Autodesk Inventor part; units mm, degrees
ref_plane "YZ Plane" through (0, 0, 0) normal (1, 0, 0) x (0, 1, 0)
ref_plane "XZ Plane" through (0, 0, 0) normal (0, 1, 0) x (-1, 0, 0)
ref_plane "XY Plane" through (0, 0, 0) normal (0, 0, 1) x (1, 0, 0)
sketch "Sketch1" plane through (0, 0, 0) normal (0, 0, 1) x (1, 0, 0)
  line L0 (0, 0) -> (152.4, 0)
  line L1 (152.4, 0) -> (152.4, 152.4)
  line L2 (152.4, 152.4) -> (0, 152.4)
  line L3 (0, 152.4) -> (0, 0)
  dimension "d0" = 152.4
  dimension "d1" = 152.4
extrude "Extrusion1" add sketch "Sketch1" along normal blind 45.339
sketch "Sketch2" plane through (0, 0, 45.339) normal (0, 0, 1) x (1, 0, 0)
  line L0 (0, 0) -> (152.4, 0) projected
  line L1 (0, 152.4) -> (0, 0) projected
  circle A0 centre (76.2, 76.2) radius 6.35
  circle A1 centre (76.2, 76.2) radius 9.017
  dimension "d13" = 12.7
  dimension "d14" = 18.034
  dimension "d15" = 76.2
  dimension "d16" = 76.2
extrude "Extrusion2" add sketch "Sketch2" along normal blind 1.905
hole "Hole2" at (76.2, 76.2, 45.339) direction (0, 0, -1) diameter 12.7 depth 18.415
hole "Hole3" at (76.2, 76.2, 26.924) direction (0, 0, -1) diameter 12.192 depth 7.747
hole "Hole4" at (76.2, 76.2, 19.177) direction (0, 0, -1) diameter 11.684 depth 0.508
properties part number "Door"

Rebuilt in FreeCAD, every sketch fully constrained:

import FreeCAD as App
import Part
import Sketcher

V = App.Vector
Q = App.Units.Quantity


def add_polygon(sketch, points):
    """Adds a closed chain of lines whose ends are joined by coincident constraints."""
    first, n = sketch.GeometryCount, len(points)
    for a, b in zip(points, points[1:] + points[:1]):
        sketch.addGeometry(Part.LineSegment(App.Vector(*a, 0), App.Vector(*b, 0)), False)
    for i in range(n):
        sketch.addConstraint(Sketcher.Constraint("Coincident", first + i, 2, first + (i + 1) % n, 1))

doc = App.newDocument("Part")
body = doc.addObject("PartDesign::Body", "Body")

sketch1 = body.newObject("Sketcher::SketchObject", "Sketch")
sketch1.AttachmentSupport = (doc.getObject("XY_Plane"), [""])
sketch1.MapMode = "FlatFace"
add_polygon(sketch1, [(0, 152), (0, 0), (152, 0), (152, 152)])
sketch1.addConstraint([
    Sketcher.Constraint("Vertical", 0),
    Sketcher.Constraint("Horizontal", 1),
    Sketcher.Constraint("Vertical", 2),
    Sketcher.Constraint("Horizontal", 3),
    Sketcher.Constraint("Coincident", 0, 2, -1, 1),
    Sketcher.Constraint("Equal", 3, 0),
    Sketcher.Constraint("DistanceX", 1, 1, 1, 2, Q("6 in")),
])
pad1 = body.newObject("PartDesign::Pad", "Pad")
pad1.Profile = sketch1
pad1.Length = Q("1.785 in")

sketch2 = body.newObject("Sketcher::SketchObject", "Sketch001")
sketch2.AttachmentSupport = (doc.getObject("XY_Plane"), [""])
sketch2.MapMode = "FlatFace"
sketch2.AttachmentOffset = App.Placement(V(0, 0, 1.785 * 25.4), App.Rotation())
sketch2.addGeometry([
    Part.Circle(V(76, 76, 0), V(0, 0, 1), 9),
    Part.Circle(V(76, 76, 0), V(0, 0, 1), 6),
], False)
sketch2.addConstraint([
    Sketcher.Constraint("Coincident", 1, 3, 0, 3),
    Sketcher.Constraint("Diameter", 1, Q("0.5 in")),
    Sketcher.Constraint("Diameter", 0, Q("0.71 in")),
    Sketcher.Constraint("DistanceX", -1, 1, 0, 3, Q("3 in")),
    Sketcher.Constraint("DistanceY", -1, 1, 0, 3, Q("3 in")),
])
pad2 = body.newObject("PartDesign::Pad", "Pad001")
pad2.Profile = sketch2
pad2.Length = Q("0.075 in")

sketch3 = body.newObject("Sketcher::SketchObject", "Sketch002")
sketch3.AttachmentSupport = (doc.getObject("XY_Plane"), [""])
sketch3.MapMode = "FlatFace"
sketch3.AttachmentOffset = App.Placement(V(0, 0, 1.785 * 25.4), App.Rotation())
sketch3.addGeometry(Part.Circle(V(76, 76, 0), V(0, 0, 1), 6), False)
sketch3.addConstraint([
    Sketcher.Constraint("Diameter", 0, Q("0.5 in")),
    Sketcher.Constraint("DistanceX", -1, 1, 0, 3, Q("3 in")),
    Sketcher.Constraint("DistanceY", -1, 1, 0, 3, Q("3 in")),
])
doc.recompute()
hole = body.newObject("PartDesign::Hole", "Hole")
hole.Profile = sketch3
hole.ThreadType = "None"
hole.Diameter = Q("0.5 in")
hole.DepthType = "Dimension"
hole.Depth = Q("0.725 in")
hole.DrillPoint = "Flat"

sketch4 = body.newObject("Sketcher::SketchObject", "Sketch003")
sketch4.AttachmentSupport = (doc.getObject("XY_Plane"), [""])
sketch4.MapMode = "FlatFace"
sketch4.AttachmentOffset = App.Placement(V(0, 0, 1.06 * 25.4), App.Rotation())
sketch4.addGeometry(Part.Circle(V(76, 76, 0), V(0, 0, 1), 6), False)
sketch4.addConstraint([
    Sketcher.Constraint("Diameter", 0, Q("0.48 in")),
    Sketcher.Constraint("DistanceX", -1, 1, 0, 3, Q("3 in")),
    Sketcher.Constraint("DistanceY", -1, 1, 0, 3, Q("3 in")),
])
doc.recompute()
hole2 = body.newObject("PartDesign::Hole", "Hole001")
hole2.Profile = sketch4
hole2.ThreadType = "None"
hole2.Diameter = Q("0.48 in")
hole2.DepthType = "Dimension"
hole2.Depth = Q("0.305 in")
hole2.DrillPoint = "Flat"

sketch5 = body.newObject("Sketcher::SketchObject", "Sketch004")
sketch5.AttachmentSupport = (doc.getObject("XY_Plane"), [""])
sketch5.MapMode = "FlatFace"
sketch5.AttachmentOffset = App.Placement(V(0, 0, 0.755 * 25.4), App.Rotation())
sketch5.addGeometry(Part.Circle(V(76, 76, 0), V(0, 0, 1), 6), False)
sketch5.addConstraint([
    Sketcher.Constraint("Diameter", 0, Q("0.46 in")),
    Sketcher.Constraint("DistanceX", -1, 1, 0, 3, Q("3 in")),
    Sketcher.Constraint("DistanceY", -1, 1, 0, 3, Q("3 in")),
])
doc.recompute()
hole3 = body.newObject("PartDesign::Hole", "Hole002")
hole3.Profile = sketch5
hole3.ThreadType = "None"
hole3.Diameter = Q("0.46 in")
hole3.DepthType = "Dimension"
hole3.Depth = Q("0.02 in")
hole3.DrillPoint = "Flat"

doc.recompute()
